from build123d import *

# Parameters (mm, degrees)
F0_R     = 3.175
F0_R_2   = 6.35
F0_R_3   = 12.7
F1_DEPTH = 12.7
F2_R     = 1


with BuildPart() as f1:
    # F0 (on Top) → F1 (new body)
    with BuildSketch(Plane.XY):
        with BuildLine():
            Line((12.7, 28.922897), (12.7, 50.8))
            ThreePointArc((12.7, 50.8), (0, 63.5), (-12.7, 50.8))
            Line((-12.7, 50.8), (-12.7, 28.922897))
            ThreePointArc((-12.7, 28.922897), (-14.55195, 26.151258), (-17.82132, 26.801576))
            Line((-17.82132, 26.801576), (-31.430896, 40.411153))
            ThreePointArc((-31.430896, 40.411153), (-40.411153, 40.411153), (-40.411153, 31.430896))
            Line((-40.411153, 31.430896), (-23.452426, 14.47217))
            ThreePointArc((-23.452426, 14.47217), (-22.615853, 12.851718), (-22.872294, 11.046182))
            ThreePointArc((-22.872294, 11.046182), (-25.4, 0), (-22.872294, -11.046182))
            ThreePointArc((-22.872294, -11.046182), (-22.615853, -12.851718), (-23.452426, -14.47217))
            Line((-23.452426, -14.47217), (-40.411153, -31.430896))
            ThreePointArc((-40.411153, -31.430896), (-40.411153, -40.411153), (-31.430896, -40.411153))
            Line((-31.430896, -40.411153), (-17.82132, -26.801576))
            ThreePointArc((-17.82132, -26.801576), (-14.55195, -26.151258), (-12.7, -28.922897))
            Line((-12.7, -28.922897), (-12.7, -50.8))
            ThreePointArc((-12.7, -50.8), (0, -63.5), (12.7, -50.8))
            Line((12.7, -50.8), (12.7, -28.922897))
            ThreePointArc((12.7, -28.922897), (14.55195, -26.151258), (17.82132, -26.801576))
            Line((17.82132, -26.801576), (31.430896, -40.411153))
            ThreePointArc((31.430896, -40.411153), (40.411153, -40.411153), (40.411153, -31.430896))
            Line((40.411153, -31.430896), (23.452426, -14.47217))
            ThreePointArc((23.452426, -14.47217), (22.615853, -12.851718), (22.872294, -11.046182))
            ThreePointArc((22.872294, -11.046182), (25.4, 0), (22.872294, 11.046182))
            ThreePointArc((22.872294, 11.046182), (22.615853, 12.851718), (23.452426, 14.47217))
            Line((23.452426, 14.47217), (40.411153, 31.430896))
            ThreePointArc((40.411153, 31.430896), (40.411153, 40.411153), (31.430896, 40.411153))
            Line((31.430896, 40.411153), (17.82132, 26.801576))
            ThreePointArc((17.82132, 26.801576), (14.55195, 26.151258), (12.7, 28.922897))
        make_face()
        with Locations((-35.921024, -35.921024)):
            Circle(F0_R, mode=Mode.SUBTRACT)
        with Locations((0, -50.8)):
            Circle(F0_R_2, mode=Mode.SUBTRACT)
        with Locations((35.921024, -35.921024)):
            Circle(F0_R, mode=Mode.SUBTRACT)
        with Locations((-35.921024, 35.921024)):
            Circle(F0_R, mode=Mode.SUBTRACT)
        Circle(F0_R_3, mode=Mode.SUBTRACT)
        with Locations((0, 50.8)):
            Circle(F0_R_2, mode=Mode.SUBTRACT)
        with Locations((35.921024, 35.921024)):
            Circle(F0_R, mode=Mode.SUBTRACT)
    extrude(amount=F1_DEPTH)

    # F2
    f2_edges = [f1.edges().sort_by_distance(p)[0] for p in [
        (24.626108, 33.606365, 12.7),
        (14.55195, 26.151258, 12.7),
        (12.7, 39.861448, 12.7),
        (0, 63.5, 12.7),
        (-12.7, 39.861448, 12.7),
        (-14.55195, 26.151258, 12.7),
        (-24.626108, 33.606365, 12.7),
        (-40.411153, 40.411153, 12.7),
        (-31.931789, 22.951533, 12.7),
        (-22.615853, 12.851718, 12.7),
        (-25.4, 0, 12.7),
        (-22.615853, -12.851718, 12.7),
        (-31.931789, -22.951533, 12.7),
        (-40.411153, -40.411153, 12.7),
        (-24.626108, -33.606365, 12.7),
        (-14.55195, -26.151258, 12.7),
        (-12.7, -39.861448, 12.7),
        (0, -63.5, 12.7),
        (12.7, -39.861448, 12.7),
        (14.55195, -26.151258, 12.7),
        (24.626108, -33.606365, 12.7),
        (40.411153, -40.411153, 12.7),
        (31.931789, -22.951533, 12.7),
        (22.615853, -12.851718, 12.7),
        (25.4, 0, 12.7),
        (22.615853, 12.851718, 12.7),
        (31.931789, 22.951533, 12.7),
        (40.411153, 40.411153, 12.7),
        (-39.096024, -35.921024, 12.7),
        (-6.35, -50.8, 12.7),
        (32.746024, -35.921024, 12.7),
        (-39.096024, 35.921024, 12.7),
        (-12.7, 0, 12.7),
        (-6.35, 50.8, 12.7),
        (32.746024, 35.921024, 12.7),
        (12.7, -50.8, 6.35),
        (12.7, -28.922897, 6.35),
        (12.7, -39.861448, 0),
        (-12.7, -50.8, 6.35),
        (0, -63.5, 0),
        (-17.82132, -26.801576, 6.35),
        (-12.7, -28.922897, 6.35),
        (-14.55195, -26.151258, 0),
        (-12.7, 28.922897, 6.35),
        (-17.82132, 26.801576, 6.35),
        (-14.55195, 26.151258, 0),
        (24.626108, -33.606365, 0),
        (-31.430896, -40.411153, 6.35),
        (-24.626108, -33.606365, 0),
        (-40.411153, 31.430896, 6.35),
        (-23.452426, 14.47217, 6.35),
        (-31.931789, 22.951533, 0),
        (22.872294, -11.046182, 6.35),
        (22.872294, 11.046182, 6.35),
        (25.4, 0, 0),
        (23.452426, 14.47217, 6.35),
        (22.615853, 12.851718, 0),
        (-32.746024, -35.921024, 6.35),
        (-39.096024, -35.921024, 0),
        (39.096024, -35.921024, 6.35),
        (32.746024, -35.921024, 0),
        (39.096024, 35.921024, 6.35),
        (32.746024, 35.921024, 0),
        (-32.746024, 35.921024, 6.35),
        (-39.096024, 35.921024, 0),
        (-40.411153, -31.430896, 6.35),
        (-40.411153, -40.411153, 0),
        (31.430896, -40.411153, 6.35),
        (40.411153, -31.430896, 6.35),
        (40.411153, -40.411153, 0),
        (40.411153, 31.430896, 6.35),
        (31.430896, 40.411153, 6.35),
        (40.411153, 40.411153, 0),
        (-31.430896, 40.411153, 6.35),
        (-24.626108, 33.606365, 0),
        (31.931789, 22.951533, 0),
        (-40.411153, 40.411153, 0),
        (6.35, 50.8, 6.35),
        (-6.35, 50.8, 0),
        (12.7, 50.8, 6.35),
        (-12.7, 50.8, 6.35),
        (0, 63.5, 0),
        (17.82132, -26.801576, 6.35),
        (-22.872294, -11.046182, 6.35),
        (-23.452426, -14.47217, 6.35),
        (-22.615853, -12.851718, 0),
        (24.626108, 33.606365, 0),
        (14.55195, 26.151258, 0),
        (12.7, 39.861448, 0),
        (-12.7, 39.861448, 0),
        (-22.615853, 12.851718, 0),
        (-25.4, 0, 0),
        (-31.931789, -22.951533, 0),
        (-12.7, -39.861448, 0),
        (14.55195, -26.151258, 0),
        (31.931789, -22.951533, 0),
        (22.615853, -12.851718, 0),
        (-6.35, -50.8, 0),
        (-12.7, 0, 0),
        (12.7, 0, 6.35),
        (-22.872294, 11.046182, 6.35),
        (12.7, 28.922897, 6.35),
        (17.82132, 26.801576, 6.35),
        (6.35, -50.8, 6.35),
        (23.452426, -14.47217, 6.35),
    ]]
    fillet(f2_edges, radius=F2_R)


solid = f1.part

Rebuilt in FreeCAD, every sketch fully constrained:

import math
import FreeCAD as App
import Part
import Sketcher
from FreeCAD import Vector
Q = App.Units.Quantity

doc = App.newDocument("Part")
body = doc.addObject("PartDesign::Body", "Body")

# Sketch on XY plane
sketch1 = body.newObject("Sketcher::SketchObject", "Sketch")
sketch1.AttachmentSupport = (doc.getObject("XY_Plane"), [""])
sketch1.MapMode = "FlatFace"
sketch1.addGeometry([
    Part.LineSegment(Vector(12.7, 28.9, 0), Vector(12.7, 50.8, 0)),  # 0
    Part.ArcOfCircle(Part.Circle(Vector(0, 50.8, 0), Vector(0, 0, 1), 12.7), math.radians(0), math.radians(180)),  # 1
    Part.LineSegment(Vector(-12.7, 50.8, 0), Vector(-12.7, 28.9, 0)),  # 2
    Part.ArcOfCircle(Part.Circle(Vector(-15.7, 28.9, 0), Vector(0, 0, 1), 3), math.radians(-135), math.radians(0)),  # 3
    Part.LineSegment(Vector(-17.8, 26.8, 0), Vector(-31.4, 40.4, 0)),  # 4
    Part.ArcOfCircle(Part.Circle(Vector(-35.9, 35.9, 0), Vector(0, 0, 1), 6.4), math.radians(45), math.radians(225)),  # 5
    Part.LineSegment(Vector(-40.4, 31.4, 0), Vector(-23.5, 14.5, 0)),  # 6
    Part.ArcOfCircle(Part.Circle(Vector(-25.6, 12.4, 0), Vector(0, 0, 1), 3), math.radians(-26), math.radians(45)),  # 7
    Part.ArcOfCircle(Part.Circle(Vector(0, 0, 0), Vector(0, 0, 1), 25.4), math.radians(154), math.radians(206)),  # 8
    Part.ArcOfCircle(Part.Circle(Vector(-25.6, -12.4, 0), Vector(0, 0, 1), 3), math.radians(-45), math.radians(26)),  # 9
    Part.LineSegment(Vector(-23.5, -14.5, 0), Vector(-40.4, -31.4, 0)),  # 10
    Part.ArcOfCircle(Part.Circle(Vector(-35.9, -35.9, 0), Vector(0, 0, 1), 6.4), math.radians(135), math.radians(315)),  # 11
    Part.LineSegment(Vector(-31.4, -40.4, 0), Vector(-17.8, -26.8, 0)),  # 12
    Part.ArcOfCircle(Part.Circle(Vector(-15.7, -28.9, 0), Vector(0, 0, 1), 3), math.radians(0), math.radians(135)),  # 13
    Part.LineSegment(Vector(-12.7, -28.9, 0), Vector(-12.7, -50.8, 0)),  # 14
    Part.ArcOfCircle(Part.Circle(Vector(0, -50.8, 0), Vector(0, 0, 1), 12.7), math.radians(180), math.radians(360)),  # 15
    Part.LineSegment(Vector(12.7, -50.8, 0), Vector(12.7, -28.9, 0)),  # 16
    Part.ArcOfCircle(Part.Circle(Vector(15.7, -28.9, 0), Vector(0, 0, 1), 3), math.radians(45), math.radians(180)),  # 17
    Part.LineSegment(Vector(17.8, -26.8, 0), Vector(31.4, -40.4, 0)),  # 18
    Part.ArcOfCircle(Part.Circle(Vector(35.9, -35.9, 0), Vector(0, 0, 1), 6.4), math.radians(-135), math.radians(45)),  # 19
    Part.LineSegment(Vector(40.4, -31.4, 0), Vector(23.5, -14.5, 0)),  # 20
    Part.ArcOfCircle(Part.Circle(Vector(25.6, -12.4, 0), Vector(0, 0, 1), 3), math.radians(154), math.radians(225)),  # 21
    Part.ArcOfCircle(Part.Circle(Vector(0, 0, 0), Vector(0, 0, 1), 25.4), math.radians(-26), math.radians(26)),  # 22
    Part.ArcOfCircle(Part.Circle(Vector(25.6, 12.4, 0), Vector(0, 0, 1), 3), math.radians(135), math.radians(206)),  # 23
    Part.LineSegment(Vector(23.5, 14.5, 0), Vector(40.4, 31.4, 0)),  # 24
    Part.ArcOfCircle(Part.Circle(Vector(35.9, 35.9, 0), Vector(0, 0, 1), 6.4), math.radians(-45), math.radians(135)),  # 25
    Part.LineSegment(Vector(31.4, 40.4, 0), Vector(17.8, 26.8, 0)),  # 26
    Part.ArcOfCircle(Part.Circle(Vector(15.7, 28.9, 0), Vector(0, 0, 1), 3), math.radians(180), math.radians(315)),  # 27
    Part.Circle(Vector(-35.9, -35.9, 0), Vector(0, 0, 1), 3.2),  # 28
    Part.Circle(Vector(0, -50.8, 0), Vector(0, 0, 1), 6.3),  # 29
    Part.Circle(Vector(35.9, -35.9, 0), Vector(0, 0, 1), 3.2),  # 30
    Part.Circle(Vector(-35.9, 35.9, 0), Vector(0, 0, 1), 3.2),  # 31
    Part.Circle(Vector(0, 0, 0), Vector(0, 0, 1), 12.7),  # 32
    Part.Circle(Vector(0, 50.8, 0), Vector(0, 0, 1), 6.3),  # 33
    Part.Circle(Vector(35.9, 35.9, 0), Vector(0, 0, 1), 3.2),  # 34
], False)
sketch1.addConstraint([
    Sketcher.Constraint("Tangent", 0, 2, 1, 1),
    Sketcher.Constraint("Tangent", 1, 2, 2, 1),
    Sketcher.Constraint("Tangent", 2, 2, 3, 2),
    Sketcher.Constraint("Tangent", 3, 1, 4, 1),
    Sketcher.Constraint("Tangent", 4, 2, 5, 1),
    Sketcher.Constraint("Tangent", 5, 2, 6, 1),
    Sketcher.Constraint("Tangent", 6, 2, 7, 2),
    Sketcher.Constraint("Tangent", 7, 1, 8, 1),
    Sketcher.Constraint("Tangent", 8, 2, 9, 2),
    Sketcher.Constraint("Tangent", 9, 1, 10, 1),
    Sketcher.Constraint("Tangent", 10, 2, 11, 1),
    Sketcher.Constraint("Tangent", 11, 2, 12, 1),
    Sketcher.Constraint("Tangent", 12, 2, 13, 2),
    Sketcher.Constraint("Tangent", 13, 1, 14, 1),
    Sketcher.Constraint("Tangent", 14, 2, 15, 1),
    Sketcher.Constraint("Tangent", 15, 2, 16, 1),
    Sketcher.Constraint("Tangent", 16, 2, 17, 2),
    Sketcher.Constraint("Tangent", 17, 1, 18, 1),
    Sketcher.Constraint("Tangent", 18, 2, 19, 1),
    Sketcher.Constraint("Tangent", 19, 2, 20, 1),
    Sketcher.Constraint("Tangent", 20, 2, 21, 2),
    Sketcher.Constraint("Tangent", 21, 1, 22, 1),
    Sketcher.Constraint("Tangent", 22, 2, 23, 2),
    Sketcher.Constraint("Tangent", 23, 1, 24, 1),
    Sketcher.Constraint("Tangent", 24, 2, 25, 1),
    Sketcher.Constraint("Tangent", 25, 2, 26, 1),
    Sketcher.Constraint("Tangent", 26, 2, 27, 2),
    Sketcher.Constraint("Tangent", 27, 1, 0, 1),
    Sketcher.Constraint("Vertical", 0),
    Sketcher.Constraint("Vertical", 2),
    Sketcher.Constraint("Vertical", 14),
    Sketcher.Constraint("Vertical", 16),
    Sketcher.Constraint("Coincident", 8, 3, -1, 1),
    Sketcher.Constraint("Coincident", 22, 3, -1, 1),
    Sketcher.Constraint("Coincident", 32, 3, -1, 1),
    Sketcher.Constraint("Coincident", 28, 3, 11, 3),
    Sketcher.Constraint("Coincident", 29, 3, 15, 3),
    Sketcher.Constraint("Coincident", 30, 3, 19, 3),
    Sketcher.Constraint("Coincident", 31, 3, 5, 3),
    Sketcher.Constraint("Coincident", 33, 3, 1, 3),
    Sketcher.Constraint("Coincident", 34, 3, 25, 3),
    Sketcher.Constraint("Equal", 3, 7),
    Sketcher.Constraint("Equal", 7, 9),
    Sketcher.Constraint("Equal", 5, 11),
    Sketcher.Constraint("Equal", 9, 13),
    Sketcher.Constraint("Equal", 1, 15),
    Sketcher.Constraint("Equal", 13, 17),
    Sketcher.Constraint("Equal", 11, 19),
    Sketcher.Constraint("Equal", 17, 21),
    Sketcher.Constraint("Equal", 8, 22),
    Sketcher.Constraint("Equal", 21, 23),
    Sketcher.Constraint("Equal", 19, 25),
    Sketcher.Constraint("Equal", 23, 27),
    Sketcher.Constraint("Equal", 25, 29),
    Sketcher.Constraint("Equal", 28, 30),
    Sketcher.Constraint("Equal", 30, 31),
    Sketcher.Constraint("Equal", 15, 32),
    Sketcher.Constraint("Equal", 29, 33),
    Sketcher.Constraint("Equal", 31, 34),
    Sketcher.Constraint("Symmetric", 1, 3, 15, 3, -1, 1),
    Sketcher.Constraint("Symmetric", 5, 3, 19, 3, -1, 1),
    Sketcher.Constraint("Symmetric", 11, 3, 25, 3, -1, 1),
    Sketcher.Constraint("Symmetric", 13, 3, 17, 3, -2),
    Sketcher.Constraint("Symmetric", 11, 3, 19, 3, -2),
    Sketcher.Constraint("Parallel", 4, 6),
    Sketcher.Constraint("Perpendicular", 6, 10),
    Sketcher.Constraint("Parallel", 10, 12),
    Sketcher.Constraint("Perpendicular", 12, 18),
    Sketcher.Constraint("Parallel", 18, 20),
    Sketcher.Constraint("Perpendicular", 20, 24),
    Sketcher.Constraint("Parallel", 24, 26),
    Sketcher.Constraint("Diameter", 32, Q("1 in")),
    Sketcher.Constraint("Diameter", 29, Q("0.5 in")),
    Sketcher.Constraint("Diameter", 28, Q("0.25 in")),
    Sketcher.Constraint("DistanceY", -1, 1, 1, 3, Q("2 in")),
    Sketcher.Constraint("Radius", 3, Q("3 mm")),
    Sketcher.Constraint("Radius", 8, Q("25.399994 mm")),
    Sketcher.Constraint("DistanceY", 9, 3, 7, 3, Q("24.701699 mm")),
    Sketcher.Constraint("DistanceX", 11, 3, 9, 1, Q("12.468598 mm")),
])
pad1 = body.newObject("PartDesign::Pad", "Pad")
pad1.Profile = sketch1
pad1.Length = Q("0.5 in")
doc.recompute()

fillet = body.newObject("PartDesign::Fillet", "Fillet")
fillet.Base = (pad1, ["Edge1"])
fillet.UseAllEdges = True
fillet.Radius = 1

doc.recompute()
